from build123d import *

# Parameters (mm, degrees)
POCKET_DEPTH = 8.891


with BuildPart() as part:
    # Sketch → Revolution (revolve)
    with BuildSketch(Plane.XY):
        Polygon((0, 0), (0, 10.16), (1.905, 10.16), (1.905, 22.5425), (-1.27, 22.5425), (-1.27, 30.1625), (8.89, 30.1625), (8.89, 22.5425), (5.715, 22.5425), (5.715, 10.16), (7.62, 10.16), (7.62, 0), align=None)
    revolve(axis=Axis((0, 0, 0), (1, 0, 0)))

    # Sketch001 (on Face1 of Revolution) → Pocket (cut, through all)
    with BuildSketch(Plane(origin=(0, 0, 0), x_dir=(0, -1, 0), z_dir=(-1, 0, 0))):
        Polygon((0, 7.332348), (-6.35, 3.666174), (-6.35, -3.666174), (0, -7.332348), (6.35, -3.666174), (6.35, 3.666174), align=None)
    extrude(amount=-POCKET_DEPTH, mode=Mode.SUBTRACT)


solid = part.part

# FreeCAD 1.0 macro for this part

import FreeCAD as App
import Part
import Sketcher
from FreeCAD import Vector
Q = App.Units.Quantity


def add_polygon(sketch, points):
    """Adds a closed chain of lines whose ends are joined by coincident constraints."""
    first, n = sketch.GeometryCount, len(points)
    for a, b in zip(points, points[1:] + points[:1]):
        sketch.addGeometry(Part.LineSegment(App.Vector(*a, 0), App.Vector(*b, 0)), False)
    for i in range(n):
        sketch.addConstraint(Sketcher.Constraint("Coincident", first + i, 2, first + (i + 1) % n, 1))

doc = App.newDocument("Part")
params = doc.addObject("Spreadsheet::Sheet", "Params")
for row, (alias, value) in enumerate([
    ("sketch1_width", "0.3 in"),
    ("sketch1_width2", "0.4 in"),
    ("sketch1_width3", "0.075 in"),
    ("revolution_angle", "360 deg"),
], start=1):
    params.set(f"A{row}", alias)
    params.set(f"B{row}", "=" + value)
    params.setAlias(f"B{row}", alias)

body = doc.addObject("PartDesign::Body", "Body")

# Sketch on XY plane
sketch1 = body.newObject("Sketcher::SketchObject", "Sketch")
sketch1.AttachmentSupport = (doc.getObject("XY_Plane"), [""])
sketch1.MapMode = "FlatFace"
add_polygon(sketch1, [(0, 10.16), (0, 0), (7.62, 0), (7.62, 10.16), (5.715, 10.16), (5.715, 22.5425), (8.89, 22.5425), (8.89, 30.1625), (-1.27, 30.1625), (-1.27, 22.5425), (1.905, 22.5425), (1.905, 10.16)])  # lines 0-11
sketch1.addConstraint([
    Sketcher.Constraint("Vertical", 0),
    Sketcher.Constraint("Horizontal", 1),
    Sketcher.Constraint("Vertical", 2),
    Sketcher.Constraint("Horizontal", 3),
    Sketcher.Constraint("Vertical", 4),
    Sketcher.Constraint("Horizontal", 5),
    Sketcher.Constraint("Vertical", 6),
    Sketcher.Constraint("Horizontal", 7),
    Sketcher.Constraint("Vertical", 8),
    Sketcher.Constraint("Horizontal", 9),
    Sketcher.Constraint("Vertical", 10),
    Sketcher.Constraint("Horizontal", 11),
    Sketcher.Constraint("Coincident", 0, 2, -1, 1),
    Sketcher.Constraint("Horizontal", 5, 2, 8, 2),
    Sketcher.Constraint("Horizontal", 3, 2, 10, 2),
    Sketcher.Constraint("Equal", 5, 9),
    Sketcher.Constraint("Equal", 3, 11),
    Sketcher.Constraint("Equal", 7, 0),
    Sketcher.Constraint("Equal", 1, 6),
    Sketcher.Constraint("DistanceX", 1, 1, 1, 2, Q("0.3 in")),
    Sketcher.Constraint("DistanceX", 7, 2, 7, 1, Q("0.4 in")),
    Sketcher.Constraint("DistanceX", 3, 2, 3, 1, Q("0.075 in")),
    Sketcher.Constraint("DistanceY", 4, 1, 4, 2, Q("0.4875 in")),
])
sketch1.setExpression("Constraints[31]", "Params.sketch1_width")
sketch1.setExpression("Constraints[32]", "Params.sketch1_width2")
sketch1.setExpression("Constraints[33]", "Params.sketch1_width3")
revolution = body.newObject("PartDesign::Revolution", "Revolution")
revolution.Profile = sketch1
revolution.ReferenceAxis = (sketch1, ["H_Axis"])
revolution.setExpression("Angle", "Params.revolution_angle")

# Sketch on YZ plane
sketch2 = body.newObject("Sketcher::SketchObject", "Sketch001")
sketch2.AttachmentSupport = (doc.getObject("YZ_Plane"), [""])
sketch2.MapMode = "FlatFace"
add_polygon(sketch2, [(0, 7.332348), (6.35, 3.666174), (6.35, -3.666174), (0, -7.332348), (-6.35, -3.666174), (-6.35, 3.666174)])  # lines 0-5
sketch2.addConstraint([
    Sketcher.Constraint("Vertical", 1),
    Sketcher.Constraint("Vertical", 4),
    Sketcher.Constraint("Symmetric", 0, 2, 3, 2, -1, 1),
    Sketcher.Constraint("Symmetric", 2, 2, 5, 2, -1, 1),
    Sketcher.Constraint("PointOnObject", 2, 2, -2),
    Sketcher.Constraint("Parallel", 2, 5),
    Sketcher.Constraint("Horizontal", 1, 2, 3, 2),
    Sketcher.Constraint("Angle", 0, Q("-29.999999 deg")),
    Sketcher.Constraint("DistanceX", 3, 2, 1, 2, Q("0.5 in")),
    Sketcher.Constraint("DistanceY", 1, 2, 1, 1, 7.332348),
])
pocket1 = body.newObject("PartDesign::Pocket", "Pocket")
pocket1.Profile = sketch2
pocket1.Type = "ThroughAll"
pocket1.Reversed = True

doc.recompute()
